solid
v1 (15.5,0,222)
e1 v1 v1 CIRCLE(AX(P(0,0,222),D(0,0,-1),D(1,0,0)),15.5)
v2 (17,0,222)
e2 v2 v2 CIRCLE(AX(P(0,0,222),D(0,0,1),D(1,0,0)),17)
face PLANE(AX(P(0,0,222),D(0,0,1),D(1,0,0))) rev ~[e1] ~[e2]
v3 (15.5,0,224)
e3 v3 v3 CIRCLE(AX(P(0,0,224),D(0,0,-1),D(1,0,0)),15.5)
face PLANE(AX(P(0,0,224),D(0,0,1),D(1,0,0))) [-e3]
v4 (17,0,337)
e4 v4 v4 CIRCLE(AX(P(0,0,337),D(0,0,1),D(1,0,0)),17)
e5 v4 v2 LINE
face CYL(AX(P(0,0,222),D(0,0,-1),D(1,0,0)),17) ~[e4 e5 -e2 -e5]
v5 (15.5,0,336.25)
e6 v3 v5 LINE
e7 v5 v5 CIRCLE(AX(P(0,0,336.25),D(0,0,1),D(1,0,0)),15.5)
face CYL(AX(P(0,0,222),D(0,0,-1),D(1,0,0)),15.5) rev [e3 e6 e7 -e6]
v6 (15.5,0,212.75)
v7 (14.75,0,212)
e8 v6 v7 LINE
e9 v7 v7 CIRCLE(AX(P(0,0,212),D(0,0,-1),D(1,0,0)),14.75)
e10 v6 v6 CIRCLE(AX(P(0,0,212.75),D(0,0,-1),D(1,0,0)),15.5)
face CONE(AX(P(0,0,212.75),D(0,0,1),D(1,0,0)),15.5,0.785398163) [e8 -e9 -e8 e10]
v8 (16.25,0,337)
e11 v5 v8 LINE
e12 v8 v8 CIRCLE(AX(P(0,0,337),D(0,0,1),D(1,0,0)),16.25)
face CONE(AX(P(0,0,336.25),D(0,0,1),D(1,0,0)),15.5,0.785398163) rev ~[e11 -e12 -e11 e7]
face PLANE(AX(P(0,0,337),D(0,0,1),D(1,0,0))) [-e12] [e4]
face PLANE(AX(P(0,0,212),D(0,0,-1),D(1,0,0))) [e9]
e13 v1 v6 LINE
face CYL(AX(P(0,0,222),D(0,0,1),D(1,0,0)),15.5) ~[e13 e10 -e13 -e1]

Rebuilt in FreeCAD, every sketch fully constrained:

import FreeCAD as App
import Part
import Sketcher

V = App.Vector
Q = App.Units.Quantity


def edges_at(feature, points):
    """Names of the edges that pass closest to the given points."""
    edges = feature.Shape.Edges
    near = lambda p: min(range(len(edges)), key=lambda i: edges[i].distToShape(Part.Vertex(*p))[0])
    return sorted({f"Edge{near(p) + 1}" for p in points})

doc = App.newDocument("Part")
params = doc.addObject("Spreadsheet::Sheet", "Params")
for row, (alias, value) in enumerate([
    ("sketch1_diameter", "34 mm"),
    ("sketch1_diameter2", "31 mm"),
    ("pad1_length", "115 mm"),
    ("chamfer_size", "0.75 mm"),
    ("sketch2_diameter", "34 mm"),
    ("pad2_length", "2 mm"),
    ("sketch3_diameter", "31 mm"),
    ("pad3_length", "10 mm"),
    ("chamfer2_size", "0.75 mm"),
], start=1):
    params.set(f"A{row}", alias)
    params.set(f"B{row}", "=" + value)
    params.setAlias(f"B{row}", alias)

body = doc.addObject("PartDesign::Body", "Body")

# Sketch on XY plane
sketch1 = body.newObject("Sketcher::SketchObject", "Sketch")
sketch1.AttachmentSupport = (doc.getObject("XY_Plane"), [""])
sketch1.MapMode = "FlatFace"
sketch1.AttachmentOffset = App.Placement(V(0, 0, 222), App.Rotation())
sketch1.addGeometry(Part.Circle(V(0, 0, 0), V(0, 0, 1), 17), False)
sketch1.addGeometry(Part.Circle(V(0, 0, 0), V(0, 0, 1), 15.5), False)
sketch1.addConstraint(Sketcher.Constraint("Coincident", 0, 3, -1, 1))
sketch1.addConstraint(Sketcher.Constraint("Coincident", 1, 3, -1, 1))
sketch1.addConstraint(Sketcher.Constraint("Diameter", 0, Q("34 mm")))
sketch1.addConstraint(Sketcher.Constraint("Diameter", 1, Q("31 mm")))
sketch1.setExpression("Constraints[2]", "Params.sketch1_diameter")
sketch1.setExpression("Constraints[3]", "Params.sketch1_diameter2")
pad1 = body.newObject("PartDesign::Pad", "Pad")
pad1.Profile = sketch1
pad1.setExpression("Length", "Params.pad1_length")
doc.recompute()

chamfer = body.newObject("PartDesign::Chamfer", "Chamfer")
chamfer.Base = (pad1, edges_at(pad1, [(-15.5, 0, 337)]))
chamfer.setExpression("Size", "Params.chamfer_size")

# Sketch on XY plane
sketch2 = body.newObject("Sketcher::SketchObject", "Sketch001")
sketch2.AttachmentSupport = (doc.getObject("XY_Plane"), [""])
sketch2.MapMode = "FlatFace"
sketch2.AttachmentOffset = App.Placement(V(0, 0, 222), App.Rotation())
sketch2.addGeometry(Part.Circle(V(0, 0, 0), V(0, 0, 1), 17), False)
sketch2.addConstraint(Sketcher.Constraint("Coincident", 0, 3, -1, 1))
sketch2.addConstraint(Sketcher.Constraint("Diameter", 0, Q("34 mm")))
sketch2.setExpression("Constraints[1]", "Params.sketch2_diameter")
pad2 = body.newObject("PartDesign::Pad", "Pad001")
pad2.Profile = sketch2
pad2.setExpression("Length", "Params.pad2_length")

# Sketch on XY plane
sketch3 = body.newObject("Sketcher::SketchObject", "Sketch002")
sketch3.AttachmentSupport = (doc.getObject("XY_Plane"), [""])
sketch3.MapMode = "FlatFace"
sketch3.AttachmentOffset = App.Placement(V(0, 0, 222), App.Rotation())
sketch3.addGeometry(Part.Circle(V(0, 0, 0), V(0, 0, 1), 15.5), False)
sketch3.addConstraint(Sketcher.Constraint("Coincident", 0, 3, -1, 1))
sketch3.addConstraint(Sketcher.Constraint("Diameter", 0, Q("31 mm")))
sketch3.setExpression("Constraints[1]", "Params.sketch3_diameter")
pad3 = body.newObject("PartDesign::Pad", "Pad002")
pad3.Profile = sketch3
pad3.setExpression("Length", "Params.pad3_length")
pad3.Reversed = True
doc.recompute()

chamfer2 = body.newObject("PartDesign::Chamfer", "Chamfer001")
chamfer2.Base = (pad3, edges_at(pad3, [(-15.5, 0, 212)]))
chamfer2.setExpression("Size", "Params.chamfer2_size")

doc.recompute()
